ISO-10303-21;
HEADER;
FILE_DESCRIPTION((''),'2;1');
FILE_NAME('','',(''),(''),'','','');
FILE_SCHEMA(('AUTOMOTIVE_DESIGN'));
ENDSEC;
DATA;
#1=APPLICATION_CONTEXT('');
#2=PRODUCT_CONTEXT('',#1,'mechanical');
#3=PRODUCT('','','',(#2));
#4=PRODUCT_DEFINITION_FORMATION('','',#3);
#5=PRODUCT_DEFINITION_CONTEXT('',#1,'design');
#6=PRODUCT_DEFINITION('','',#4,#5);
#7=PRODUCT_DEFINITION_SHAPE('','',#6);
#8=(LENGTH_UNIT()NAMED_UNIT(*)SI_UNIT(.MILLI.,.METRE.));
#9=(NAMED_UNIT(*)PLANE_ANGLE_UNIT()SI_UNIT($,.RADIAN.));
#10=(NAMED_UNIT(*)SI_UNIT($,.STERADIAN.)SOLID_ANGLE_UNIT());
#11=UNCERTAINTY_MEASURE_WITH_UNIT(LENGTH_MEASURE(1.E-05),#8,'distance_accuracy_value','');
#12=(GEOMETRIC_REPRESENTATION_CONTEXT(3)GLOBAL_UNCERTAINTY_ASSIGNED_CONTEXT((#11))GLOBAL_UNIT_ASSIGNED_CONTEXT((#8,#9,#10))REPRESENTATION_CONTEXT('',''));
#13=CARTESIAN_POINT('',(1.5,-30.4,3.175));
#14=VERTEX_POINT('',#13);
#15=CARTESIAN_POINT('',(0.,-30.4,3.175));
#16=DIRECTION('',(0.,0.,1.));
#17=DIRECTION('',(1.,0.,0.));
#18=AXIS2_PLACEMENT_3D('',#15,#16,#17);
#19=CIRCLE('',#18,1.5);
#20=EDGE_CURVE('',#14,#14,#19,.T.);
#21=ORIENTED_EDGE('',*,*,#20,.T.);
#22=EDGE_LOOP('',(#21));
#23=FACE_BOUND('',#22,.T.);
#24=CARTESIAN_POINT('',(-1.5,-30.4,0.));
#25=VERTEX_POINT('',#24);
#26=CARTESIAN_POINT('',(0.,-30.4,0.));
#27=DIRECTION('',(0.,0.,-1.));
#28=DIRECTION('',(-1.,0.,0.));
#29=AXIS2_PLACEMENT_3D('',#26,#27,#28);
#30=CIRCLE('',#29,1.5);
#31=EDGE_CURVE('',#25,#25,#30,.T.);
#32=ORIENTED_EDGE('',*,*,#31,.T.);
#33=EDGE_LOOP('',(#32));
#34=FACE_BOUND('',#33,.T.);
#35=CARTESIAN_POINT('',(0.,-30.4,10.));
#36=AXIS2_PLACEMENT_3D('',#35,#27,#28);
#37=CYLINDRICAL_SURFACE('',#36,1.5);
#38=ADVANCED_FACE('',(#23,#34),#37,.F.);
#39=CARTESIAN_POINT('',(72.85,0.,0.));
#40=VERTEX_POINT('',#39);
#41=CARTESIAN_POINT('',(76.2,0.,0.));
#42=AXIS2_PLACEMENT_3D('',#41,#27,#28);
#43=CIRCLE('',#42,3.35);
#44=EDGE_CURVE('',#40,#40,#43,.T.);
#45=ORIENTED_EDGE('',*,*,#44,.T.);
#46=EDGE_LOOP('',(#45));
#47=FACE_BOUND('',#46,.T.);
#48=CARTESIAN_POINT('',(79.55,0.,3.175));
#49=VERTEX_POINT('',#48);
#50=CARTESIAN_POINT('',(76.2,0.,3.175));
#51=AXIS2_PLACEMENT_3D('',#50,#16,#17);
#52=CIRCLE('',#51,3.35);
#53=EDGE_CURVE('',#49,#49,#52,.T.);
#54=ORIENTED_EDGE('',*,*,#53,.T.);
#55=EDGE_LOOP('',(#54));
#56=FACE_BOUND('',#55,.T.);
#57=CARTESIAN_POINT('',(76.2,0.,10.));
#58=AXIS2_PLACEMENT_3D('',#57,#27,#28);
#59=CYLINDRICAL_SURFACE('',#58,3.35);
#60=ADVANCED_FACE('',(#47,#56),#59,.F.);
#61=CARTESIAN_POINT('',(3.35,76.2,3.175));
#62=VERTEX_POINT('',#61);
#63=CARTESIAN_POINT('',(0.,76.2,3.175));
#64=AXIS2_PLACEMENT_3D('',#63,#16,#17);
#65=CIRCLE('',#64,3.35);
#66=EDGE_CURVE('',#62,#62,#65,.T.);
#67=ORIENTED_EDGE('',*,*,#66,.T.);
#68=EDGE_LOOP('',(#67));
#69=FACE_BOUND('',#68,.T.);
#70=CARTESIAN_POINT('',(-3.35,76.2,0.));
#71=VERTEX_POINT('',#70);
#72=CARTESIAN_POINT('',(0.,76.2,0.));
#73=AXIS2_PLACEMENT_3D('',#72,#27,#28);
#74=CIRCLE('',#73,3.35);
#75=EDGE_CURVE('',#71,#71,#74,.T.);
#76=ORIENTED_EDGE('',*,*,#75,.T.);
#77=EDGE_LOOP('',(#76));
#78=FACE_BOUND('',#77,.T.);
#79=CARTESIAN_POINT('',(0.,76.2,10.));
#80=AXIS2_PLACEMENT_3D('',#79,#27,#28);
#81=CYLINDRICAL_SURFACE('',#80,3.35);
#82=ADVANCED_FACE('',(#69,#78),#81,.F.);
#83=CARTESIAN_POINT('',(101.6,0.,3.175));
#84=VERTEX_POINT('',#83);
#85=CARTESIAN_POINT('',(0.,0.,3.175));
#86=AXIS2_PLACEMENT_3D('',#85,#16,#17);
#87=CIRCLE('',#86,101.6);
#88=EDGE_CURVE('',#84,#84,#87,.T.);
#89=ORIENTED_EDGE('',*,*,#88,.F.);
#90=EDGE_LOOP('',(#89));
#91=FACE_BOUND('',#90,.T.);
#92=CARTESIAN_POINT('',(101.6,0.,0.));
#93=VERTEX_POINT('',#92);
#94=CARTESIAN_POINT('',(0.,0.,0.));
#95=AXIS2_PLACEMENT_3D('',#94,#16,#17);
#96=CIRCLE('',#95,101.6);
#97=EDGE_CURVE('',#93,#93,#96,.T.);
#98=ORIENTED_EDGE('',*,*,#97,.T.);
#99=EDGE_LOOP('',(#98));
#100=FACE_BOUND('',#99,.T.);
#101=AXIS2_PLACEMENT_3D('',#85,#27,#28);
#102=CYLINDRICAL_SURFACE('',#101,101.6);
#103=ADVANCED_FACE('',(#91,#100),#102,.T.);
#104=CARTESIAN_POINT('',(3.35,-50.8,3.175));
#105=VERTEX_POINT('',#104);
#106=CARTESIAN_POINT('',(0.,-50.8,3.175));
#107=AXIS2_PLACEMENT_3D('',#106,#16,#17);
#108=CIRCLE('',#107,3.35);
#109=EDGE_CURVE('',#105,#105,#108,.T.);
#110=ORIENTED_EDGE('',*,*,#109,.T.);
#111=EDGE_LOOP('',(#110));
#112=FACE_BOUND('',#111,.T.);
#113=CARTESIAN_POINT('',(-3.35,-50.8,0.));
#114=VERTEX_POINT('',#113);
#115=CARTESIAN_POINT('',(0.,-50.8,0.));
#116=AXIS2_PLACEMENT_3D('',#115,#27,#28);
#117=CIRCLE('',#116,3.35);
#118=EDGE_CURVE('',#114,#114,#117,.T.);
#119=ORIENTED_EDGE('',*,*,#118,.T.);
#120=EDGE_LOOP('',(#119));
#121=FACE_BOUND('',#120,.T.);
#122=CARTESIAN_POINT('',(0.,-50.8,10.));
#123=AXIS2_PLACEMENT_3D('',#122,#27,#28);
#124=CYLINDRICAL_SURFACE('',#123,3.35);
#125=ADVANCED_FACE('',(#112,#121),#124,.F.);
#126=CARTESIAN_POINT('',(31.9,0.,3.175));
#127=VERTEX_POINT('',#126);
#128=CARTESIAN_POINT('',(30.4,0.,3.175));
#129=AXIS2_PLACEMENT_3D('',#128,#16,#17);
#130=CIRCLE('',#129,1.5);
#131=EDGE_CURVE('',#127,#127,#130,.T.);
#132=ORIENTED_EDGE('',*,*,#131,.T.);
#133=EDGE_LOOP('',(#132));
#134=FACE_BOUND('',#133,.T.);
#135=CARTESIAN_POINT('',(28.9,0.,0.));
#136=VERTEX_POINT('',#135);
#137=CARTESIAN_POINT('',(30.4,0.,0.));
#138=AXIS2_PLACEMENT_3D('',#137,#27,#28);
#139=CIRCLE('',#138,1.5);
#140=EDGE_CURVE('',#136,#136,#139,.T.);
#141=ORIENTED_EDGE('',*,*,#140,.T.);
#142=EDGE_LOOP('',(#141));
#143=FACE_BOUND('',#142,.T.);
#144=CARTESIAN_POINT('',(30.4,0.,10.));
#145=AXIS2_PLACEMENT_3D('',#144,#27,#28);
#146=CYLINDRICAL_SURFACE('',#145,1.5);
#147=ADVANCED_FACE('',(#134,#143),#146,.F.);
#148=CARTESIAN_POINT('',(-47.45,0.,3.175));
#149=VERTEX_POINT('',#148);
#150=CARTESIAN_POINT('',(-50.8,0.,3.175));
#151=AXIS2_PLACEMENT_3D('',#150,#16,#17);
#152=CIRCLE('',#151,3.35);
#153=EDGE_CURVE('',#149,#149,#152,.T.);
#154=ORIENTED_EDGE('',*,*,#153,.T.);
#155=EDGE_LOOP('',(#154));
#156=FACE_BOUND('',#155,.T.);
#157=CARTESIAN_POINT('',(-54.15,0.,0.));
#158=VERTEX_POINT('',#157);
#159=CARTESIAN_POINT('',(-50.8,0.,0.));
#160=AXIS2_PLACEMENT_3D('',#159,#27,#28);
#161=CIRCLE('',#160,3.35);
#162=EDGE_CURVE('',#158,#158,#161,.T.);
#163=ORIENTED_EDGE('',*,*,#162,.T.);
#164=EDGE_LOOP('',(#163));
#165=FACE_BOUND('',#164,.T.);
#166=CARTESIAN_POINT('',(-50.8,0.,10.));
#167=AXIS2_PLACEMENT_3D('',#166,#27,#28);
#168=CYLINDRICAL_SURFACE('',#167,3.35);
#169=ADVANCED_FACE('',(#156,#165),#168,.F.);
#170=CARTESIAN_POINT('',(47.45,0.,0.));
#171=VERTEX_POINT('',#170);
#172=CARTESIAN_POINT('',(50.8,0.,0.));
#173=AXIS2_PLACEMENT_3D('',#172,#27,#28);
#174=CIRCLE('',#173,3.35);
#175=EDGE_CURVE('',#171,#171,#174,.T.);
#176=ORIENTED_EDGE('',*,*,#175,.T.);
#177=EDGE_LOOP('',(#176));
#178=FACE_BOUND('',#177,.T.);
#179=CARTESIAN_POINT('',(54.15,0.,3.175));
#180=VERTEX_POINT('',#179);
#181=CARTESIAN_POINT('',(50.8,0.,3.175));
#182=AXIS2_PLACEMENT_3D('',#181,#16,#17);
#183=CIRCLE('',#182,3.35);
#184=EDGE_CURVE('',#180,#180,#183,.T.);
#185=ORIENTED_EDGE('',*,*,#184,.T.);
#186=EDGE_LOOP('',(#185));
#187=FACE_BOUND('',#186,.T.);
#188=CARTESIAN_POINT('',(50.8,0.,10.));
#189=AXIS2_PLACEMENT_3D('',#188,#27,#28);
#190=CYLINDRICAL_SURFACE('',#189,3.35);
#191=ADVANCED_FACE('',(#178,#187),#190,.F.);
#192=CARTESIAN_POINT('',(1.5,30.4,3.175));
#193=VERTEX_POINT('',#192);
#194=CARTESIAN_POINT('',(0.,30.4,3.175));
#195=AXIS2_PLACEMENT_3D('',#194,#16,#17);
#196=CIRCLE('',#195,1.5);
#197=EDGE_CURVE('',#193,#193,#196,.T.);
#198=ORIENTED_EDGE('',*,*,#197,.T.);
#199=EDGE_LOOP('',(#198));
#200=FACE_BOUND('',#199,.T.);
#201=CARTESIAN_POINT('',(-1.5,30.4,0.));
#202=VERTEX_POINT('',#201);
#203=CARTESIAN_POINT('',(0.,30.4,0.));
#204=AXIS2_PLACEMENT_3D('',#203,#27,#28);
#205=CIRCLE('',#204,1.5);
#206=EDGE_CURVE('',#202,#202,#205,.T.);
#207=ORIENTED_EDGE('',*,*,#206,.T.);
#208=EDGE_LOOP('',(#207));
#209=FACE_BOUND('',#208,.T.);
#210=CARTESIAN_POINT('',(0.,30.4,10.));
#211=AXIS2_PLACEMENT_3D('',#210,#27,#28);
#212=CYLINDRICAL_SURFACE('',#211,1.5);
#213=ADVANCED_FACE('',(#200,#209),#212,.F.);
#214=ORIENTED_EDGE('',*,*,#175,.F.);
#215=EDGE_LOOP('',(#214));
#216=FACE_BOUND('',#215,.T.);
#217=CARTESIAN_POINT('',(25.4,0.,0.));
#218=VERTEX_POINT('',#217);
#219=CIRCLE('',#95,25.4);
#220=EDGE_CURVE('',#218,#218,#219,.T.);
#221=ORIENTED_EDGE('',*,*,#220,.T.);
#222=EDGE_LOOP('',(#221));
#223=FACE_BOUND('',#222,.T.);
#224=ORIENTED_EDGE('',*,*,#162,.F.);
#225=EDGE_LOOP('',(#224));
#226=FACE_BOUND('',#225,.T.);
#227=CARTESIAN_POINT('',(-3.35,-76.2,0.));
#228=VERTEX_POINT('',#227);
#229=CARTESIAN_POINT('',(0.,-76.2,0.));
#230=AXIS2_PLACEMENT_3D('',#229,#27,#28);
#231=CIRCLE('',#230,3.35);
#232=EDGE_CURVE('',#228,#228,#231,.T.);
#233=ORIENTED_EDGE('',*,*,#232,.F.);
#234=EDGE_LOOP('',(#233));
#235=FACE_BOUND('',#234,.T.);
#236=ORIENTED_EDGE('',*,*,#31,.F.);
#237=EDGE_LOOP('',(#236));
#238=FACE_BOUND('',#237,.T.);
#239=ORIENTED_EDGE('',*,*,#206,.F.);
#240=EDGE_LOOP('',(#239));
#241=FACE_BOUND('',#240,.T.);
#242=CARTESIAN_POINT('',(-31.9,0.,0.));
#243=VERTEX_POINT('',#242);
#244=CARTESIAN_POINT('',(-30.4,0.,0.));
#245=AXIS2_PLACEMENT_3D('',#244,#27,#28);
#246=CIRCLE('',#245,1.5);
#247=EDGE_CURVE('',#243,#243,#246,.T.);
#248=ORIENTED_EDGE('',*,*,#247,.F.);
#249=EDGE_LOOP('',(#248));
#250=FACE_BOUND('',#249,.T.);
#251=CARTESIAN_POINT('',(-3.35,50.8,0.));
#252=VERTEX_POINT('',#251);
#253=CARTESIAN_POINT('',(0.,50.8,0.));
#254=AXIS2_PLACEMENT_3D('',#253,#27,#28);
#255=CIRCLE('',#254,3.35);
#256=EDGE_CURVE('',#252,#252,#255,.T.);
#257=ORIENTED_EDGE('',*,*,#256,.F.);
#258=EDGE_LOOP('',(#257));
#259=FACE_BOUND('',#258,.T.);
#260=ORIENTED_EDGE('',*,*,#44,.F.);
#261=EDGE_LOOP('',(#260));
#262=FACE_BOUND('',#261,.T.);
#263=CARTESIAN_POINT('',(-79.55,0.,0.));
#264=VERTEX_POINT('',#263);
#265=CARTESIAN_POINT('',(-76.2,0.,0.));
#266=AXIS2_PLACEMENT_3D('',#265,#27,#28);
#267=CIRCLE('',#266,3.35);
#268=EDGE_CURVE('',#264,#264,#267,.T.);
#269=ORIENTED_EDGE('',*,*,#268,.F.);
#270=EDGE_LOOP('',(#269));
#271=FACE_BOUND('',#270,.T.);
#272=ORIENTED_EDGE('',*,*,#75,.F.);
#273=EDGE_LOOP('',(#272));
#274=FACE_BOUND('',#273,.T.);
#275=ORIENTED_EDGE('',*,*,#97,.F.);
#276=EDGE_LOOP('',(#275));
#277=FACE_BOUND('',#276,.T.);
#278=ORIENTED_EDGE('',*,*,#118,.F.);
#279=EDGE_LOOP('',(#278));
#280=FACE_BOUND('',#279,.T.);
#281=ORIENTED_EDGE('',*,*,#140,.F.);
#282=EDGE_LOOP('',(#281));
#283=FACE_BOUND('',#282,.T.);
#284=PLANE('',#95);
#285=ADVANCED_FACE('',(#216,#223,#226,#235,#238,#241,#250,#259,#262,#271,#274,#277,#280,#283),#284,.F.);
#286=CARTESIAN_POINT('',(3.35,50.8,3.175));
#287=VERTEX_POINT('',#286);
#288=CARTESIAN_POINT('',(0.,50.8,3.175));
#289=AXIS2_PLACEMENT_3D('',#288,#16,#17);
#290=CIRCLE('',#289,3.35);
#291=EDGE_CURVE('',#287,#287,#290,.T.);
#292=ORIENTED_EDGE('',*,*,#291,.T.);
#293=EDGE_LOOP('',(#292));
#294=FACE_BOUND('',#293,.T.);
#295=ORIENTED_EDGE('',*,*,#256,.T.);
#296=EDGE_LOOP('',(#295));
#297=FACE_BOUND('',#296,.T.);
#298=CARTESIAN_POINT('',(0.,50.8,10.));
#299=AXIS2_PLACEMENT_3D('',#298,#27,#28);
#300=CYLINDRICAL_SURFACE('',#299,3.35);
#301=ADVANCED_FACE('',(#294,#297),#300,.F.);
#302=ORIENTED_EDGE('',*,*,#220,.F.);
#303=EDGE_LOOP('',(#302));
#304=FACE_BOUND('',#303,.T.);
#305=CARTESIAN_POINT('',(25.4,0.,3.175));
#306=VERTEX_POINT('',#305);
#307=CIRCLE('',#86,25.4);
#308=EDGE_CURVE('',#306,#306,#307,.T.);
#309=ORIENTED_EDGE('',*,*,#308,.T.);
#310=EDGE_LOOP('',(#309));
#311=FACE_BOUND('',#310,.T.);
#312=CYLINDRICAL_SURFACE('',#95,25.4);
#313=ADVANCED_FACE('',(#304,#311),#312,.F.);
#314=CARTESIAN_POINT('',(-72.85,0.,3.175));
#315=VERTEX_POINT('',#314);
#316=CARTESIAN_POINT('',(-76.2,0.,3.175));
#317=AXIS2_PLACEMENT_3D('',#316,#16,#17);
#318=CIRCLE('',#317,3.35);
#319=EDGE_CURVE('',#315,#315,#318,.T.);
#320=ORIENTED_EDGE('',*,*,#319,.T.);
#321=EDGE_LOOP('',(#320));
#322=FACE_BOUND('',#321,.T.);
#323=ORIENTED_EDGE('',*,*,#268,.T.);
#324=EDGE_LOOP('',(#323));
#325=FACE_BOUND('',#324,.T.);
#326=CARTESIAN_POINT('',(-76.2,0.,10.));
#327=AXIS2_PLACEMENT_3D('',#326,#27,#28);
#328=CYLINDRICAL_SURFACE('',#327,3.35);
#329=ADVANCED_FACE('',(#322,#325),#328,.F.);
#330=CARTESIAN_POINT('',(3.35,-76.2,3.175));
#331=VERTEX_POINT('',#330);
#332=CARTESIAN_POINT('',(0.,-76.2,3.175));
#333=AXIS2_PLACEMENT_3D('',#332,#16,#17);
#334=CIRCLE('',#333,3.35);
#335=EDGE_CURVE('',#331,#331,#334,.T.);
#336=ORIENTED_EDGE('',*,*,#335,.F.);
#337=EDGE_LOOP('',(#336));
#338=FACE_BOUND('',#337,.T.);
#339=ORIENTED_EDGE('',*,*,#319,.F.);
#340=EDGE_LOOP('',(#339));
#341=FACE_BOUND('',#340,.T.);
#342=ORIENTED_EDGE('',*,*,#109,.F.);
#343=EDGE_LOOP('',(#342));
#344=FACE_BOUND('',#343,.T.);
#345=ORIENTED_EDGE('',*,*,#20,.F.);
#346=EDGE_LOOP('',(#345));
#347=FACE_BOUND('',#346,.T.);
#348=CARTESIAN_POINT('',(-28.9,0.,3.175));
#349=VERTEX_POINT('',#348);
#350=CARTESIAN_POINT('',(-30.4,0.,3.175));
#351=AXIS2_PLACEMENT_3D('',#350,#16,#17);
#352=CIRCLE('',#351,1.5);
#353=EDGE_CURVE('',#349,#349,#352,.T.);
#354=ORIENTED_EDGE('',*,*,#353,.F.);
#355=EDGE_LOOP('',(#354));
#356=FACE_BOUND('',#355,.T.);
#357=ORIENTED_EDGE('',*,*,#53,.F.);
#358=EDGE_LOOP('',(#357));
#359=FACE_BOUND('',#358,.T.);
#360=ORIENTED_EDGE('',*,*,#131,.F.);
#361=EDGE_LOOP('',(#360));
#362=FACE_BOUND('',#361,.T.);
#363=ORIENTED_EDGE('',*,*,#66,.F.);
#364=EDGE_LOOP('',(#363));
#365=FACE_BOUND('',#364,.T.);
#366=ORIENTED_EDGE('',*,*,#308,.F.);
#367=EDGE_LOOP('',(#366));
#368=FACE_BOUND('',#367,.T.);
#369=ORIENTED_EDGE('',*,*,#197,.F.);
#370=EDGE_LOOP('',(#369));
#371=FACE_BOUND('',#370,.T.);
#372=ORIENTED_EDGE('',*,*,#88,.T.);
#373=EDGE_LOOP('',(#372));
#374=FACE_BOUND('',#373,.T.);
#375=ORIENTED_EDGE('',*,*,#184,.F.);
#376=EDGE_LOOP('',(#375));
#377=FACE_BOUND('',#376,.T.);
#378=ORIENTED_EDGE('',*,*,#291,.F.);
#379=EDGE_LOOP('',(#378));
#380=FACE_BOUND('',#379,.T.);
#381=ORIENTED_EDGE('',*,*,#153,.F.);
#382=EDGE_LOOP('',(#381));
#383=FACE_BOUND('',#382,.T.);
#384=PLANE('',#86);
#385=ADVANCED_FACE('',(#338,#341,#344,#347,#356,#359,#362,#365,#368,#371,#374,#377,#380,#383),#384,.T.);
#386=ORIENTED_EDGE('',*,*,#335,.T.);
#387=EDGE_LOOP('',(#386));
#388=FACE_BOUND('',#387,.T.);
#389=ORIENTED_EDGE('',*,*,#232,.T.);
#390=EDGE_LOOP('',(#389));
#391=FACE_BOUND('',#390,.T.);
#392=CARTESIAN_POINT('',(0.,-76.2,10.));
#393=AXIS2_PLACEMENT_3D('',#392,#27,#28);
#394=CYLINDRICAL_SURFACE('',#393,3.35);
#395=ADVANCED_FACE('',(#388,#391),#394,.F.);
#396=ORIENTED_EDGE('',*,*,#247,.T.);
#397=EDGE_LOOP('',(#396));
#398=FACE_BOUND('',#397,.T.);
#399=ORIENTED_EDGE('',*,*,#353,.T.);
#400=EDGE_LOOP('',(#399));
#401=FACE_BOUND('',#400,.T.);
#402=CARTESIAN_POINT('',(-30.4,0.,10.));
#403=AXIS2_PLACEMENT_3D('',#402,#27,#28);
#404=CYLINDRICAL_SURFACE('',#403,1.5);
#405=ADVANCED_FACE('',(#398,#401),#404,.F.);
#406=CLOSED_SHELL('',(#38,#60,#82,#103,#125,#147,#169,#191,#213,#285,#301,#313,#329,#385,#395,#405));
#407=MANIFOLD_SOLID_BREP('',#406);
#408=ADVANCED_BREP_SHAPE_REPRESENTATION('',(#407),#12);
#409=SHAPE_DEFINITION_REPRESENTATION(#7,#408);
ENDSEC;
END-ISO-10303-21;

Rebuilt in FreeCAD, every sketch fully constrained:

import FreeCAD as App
import Part
import Sketcher

doc = App.newDocument("Part")
body = doc.addObject("PartDesign::Body", "Body")

# Sketch on XY plane
sketch1 = body.newObject("Sketcher::SketchObject", "Sketch")
sketch1.AttachmentSupport = (doc.getObject("XY_Plane"), [""])
sketch1.MapMode = "FlatFace"
sketch1.addGeometry(Part.Circle(App.Vector(0, 0, 0), App.Vector(0, 0, 1), 101.6), False)
sketch1.addConstraint(Sketcher.Constraint("Coincident", 0, 3, -1, 1))
sketch1.addConstraint(Sketcher.Constraint("Diameter", 0, 203.2))
pad1 = body.newObject("PartDesign::Pad", "Pad")
pad1.Profile = sketch1
pad1.Length = 3.175

# Sketch on XY plane
sketch2 = body.newObject("Sketcher::SketchObject", "Sketch001")
sketch2.AttachmentSupport = (doc.getObject("XY_Plane"), [""])
sketch2.MapMode = "FlatFace"
sketch2.AttachmentOffset = App.Placement(App.Vector(0, 0, 3.175), App.Rotation())
sketch2.addGeometry(Part.Circle(App.Vector(0, 0, 0), App.Vector(0, 0, 1), 25.4), False)
sketch2.addConstraint(Sketcher.Constraint("Coincident", 0, 3, -1, 1))
sketch2.addConstraint(Sketcher.Constraint("Diameter", 0, 50.8))
pocket1 = body.newObject("PartDesign::Pocket", "Pocket")
pocket1.Profile = sketch2
pocket1.Length = 3.175

# Sketch on XY plane
sketch3 = body.newObject("Sketcher::SketchObject", "Sketch002")
sketch3.AttachmentSupport = (doc.getObject("XY_Plane"), [""])
sketch3.MapMode = "FlatFace"
sketch3.addGeometry(Part.Circle(App.Vector(0, 30.4, 0), App.Vector(0, 0, 1), 1.5), False)
sketch3.addGeometry(Part.Circle(App.Vector(-30.4, 0, 0), App.Vector(0, 0, 1), 1.5), False)
sketch3.addGeometry(Part.Circle(App.Vector(0, -30.4, 0), App.Vector(0, 0, 1), 1.5), False)
sketch3.addGeometry(Part.Circle(App.Vector(30.4, 0, 0), App.Vector(0, 0, 1), 1.5), False)
sketch3.addConstraint(Sketcher.Constraint("Equal", 0, 1))
sketch3.addConstraint(Sketcher.Constraint("Equal", 1, 2))
sketch3.addConstraint(Sketcher.Constraint("Equal", 2, 3))
sketch3.addConstraint(Sketcher.Constraint("Symmetric", 0, 3, 2, 3, -1, 1))
sketch3.addConstraint(Sketcher.Constraint("Symmetric", 1, 3, 3, 3, -1, 1))
sketch3.addConstraint(Sketcher.Constraint("PointOnObject", 0, 3, -2))
sketch3.addConstraint(Sketcher.Constraint("PointOnObject", 1, 3, -1))
sketch3.addConstraint(Sketcher.Constraint("Diameter", 0, 3.0))
sketch3.addConstraint(Sketcher.Constraint("DistanceY", -1, 1, 0, 3, 30.4))
sketch3.addConstraint(Sketcher.Constraint("DistanceX", 1, 3, -1, 1, 30.4))
pocket2 = body.newObject("PartDesign::Pocket", "Pocket001")
pocket2.Profile = sketch3
pocket2.Length = 10
pocket2.Reversed = True

# Sketch on XY plane
sketch4 = body.newObject("Sketcher::SketchObject", "Sketch003")
sketch4.AttachmentSupport = (doc.getObject("XY_Plane"), [""])
sketch4.MapMode = "FlatFace"
sketch4.addGeometry(Part.Circle(App.Vector(0, 50.8, 0), App.Vector(0, 0, 1), 3.35), False)
sketch4.addGeometry(Part.Circle(App.Vector(-50.8, 0, 0), App.Vector(0, 0, 1), 3.35), False)
sketch4.addGeometry(Part.Circle(App.Vector(0, -50.8, 0), App.Vector(0, 0, 1), 3.35), False)
sketch4.addGeometry(Part.Circle(App.Vector(50.8, 0, 0), App.Vector(0, 0, 1), 3.35), False)
sketch4.addConstraint(Sketcher.Constraint("Equal", 0, 1))
sketch4.addConstraint(Sketcher.Constraint("Equal", 1, 2))
sketch4.addConstraint(Sketcher.Constraint("Equal", 2, 3))
sketch4.addConstraint(Sketcher.Constraint("Symmetric", 0, 3, 2, 3, -1, 1))
sketch4.addConstraint(Sketcher.Constraint("Symmetric", 1, 3, 3, 3, -1, 1))
sketch4.addConstraint(Sketcher.Constraint("PointOnObject", 0, 3, -2))
sketch4.addConstraint(Sketcher.Constraint("PointOnObject", 1, 3, -1))
sketch4.addConstraint(Sketcher.Constraint("Diameter", 0, 6.7))
sketch4.addConstraint(Sketcher.Constraint("DistanceY", -1, 1, 0, 3, 50.8))
sketch4.addConstraint(Sketcher.Constraint("DistanceX", 1, 3, -1, 1, 50.8))
pocket3 = body.newObject("PartDesign::Pocket", "Pocket002")
pocket3.Profile = sketch4
pocket3.Length = 10
pocket3.Reversed = True

# Sketch on XY plane
sketch5 = body.newObject("Sketcher::SketchObject", "Sketch004")
sketch5.AttachmentSupport = (doc.getObject("XY_Plane"), [""])
sketch5.MapMode = "FlatFace"
sketch5.addGeometry(Part.Circle(App.Vector(76.2, 0, 0), App.Vector(0, 0, 1), 3.35), False)
sketch5.addGeometry(Part.Circle(App.Vector(0, 76.2, 0), App.Vector(0, 0, 1), 3.35), False)
sketch5.addGeometry(Part.Circle(App.Vector(0, -76.2, 0), App.Vector(0, 0, 1), 3.35), False)
sketch5.addGeometry(Part.Circle(App.Vector(-76.2, 0, 0), App.Vector(0, 0, 1), 3.35), False)
sketch5.addConstraint(Sketcher.Constraint("Equal", 0, 1))
sketch5.addConstraint(Sketcher.Constraint("Equal", 1, 2))
sketch5.addConstraint(Sketcher.Constraint("Equal", 2, 3))
sketch5.addConstraint(Sketcher.Constraint("Symmetric", 1, 3, 2, 3, -1, 1))
sketch5.addConstraint(Sketcher.Constraint("Symmetric", 0, 3, 3, 3, -1, 1))
sketch5.addConstraint(Sketcher.Constraint("PointOnObject", 0, 3, -1))
sketch5.addConstraint(Sketcher.Constraint("PointOnObject", 1, 3, -2))
sketch5.addConstraint(Sketcher.Constraint("Diameter", 0, 6.7))
sketch5.addConstraint(Sketcher.Constraint("DistanceX", -1, 1, 0, 3, 76.2))
sketch5.addConstraint(Sketcher.Constraint("DistanceY", -1, 1, 1, 3, 76.2))
pocket4 = body.newObject("PartDesign::Pocket", "Pocket003")
pocket4.Profile = sketch5
pocket4.Length = 10
pocket4.Reversed = True

doc.recompute()
